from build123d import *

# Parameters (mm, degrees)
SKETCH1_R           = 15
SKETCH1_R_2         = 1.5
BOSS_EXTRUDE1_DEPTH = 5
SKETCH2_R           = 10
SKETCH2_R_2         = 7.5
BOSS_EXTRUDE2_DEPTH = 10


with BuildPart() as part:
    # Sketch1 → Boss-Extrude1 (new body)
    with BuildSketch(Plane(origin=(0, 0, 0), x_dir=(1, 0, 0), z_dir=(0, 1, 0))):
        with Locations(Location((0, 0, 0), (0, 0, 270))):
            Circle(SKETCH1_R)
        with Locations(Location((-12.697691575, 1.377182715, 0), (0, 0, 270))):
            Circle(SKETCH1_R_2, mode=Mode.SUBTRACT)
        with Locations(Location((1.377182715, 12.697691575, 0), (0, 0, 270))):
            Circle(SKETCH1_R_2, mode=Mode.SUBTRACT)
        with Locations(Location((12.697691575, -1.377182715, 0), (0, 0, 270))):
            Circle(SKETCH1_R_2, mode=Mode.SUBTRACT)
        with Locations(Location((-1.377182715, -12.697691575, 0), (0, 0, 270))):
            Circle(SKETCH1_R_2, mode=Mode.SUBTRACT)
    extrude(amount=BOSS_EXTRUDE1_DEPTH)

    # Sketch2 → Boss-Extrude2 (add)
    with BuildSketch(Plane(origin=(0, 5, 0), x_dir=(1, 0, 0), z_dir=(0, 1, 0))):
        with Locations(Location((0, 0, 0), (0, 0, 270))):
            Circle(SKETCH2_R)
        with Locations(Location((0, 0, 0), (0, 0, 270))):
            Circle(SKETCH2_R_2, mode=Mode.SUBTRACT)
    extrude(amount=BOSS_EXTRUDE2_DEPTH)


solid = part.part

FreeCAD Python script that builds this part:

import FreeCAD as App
import Part
import Sketcher
from FreeCAD import Vector

doc = App.newDocument("Part")
body = doc.addObject("PartDesign::Body", "Body")

sketch1 = body.newObject("Sketcher::SketchObject", "Sketch")
sketch1.AttachmentSupport = (doc.getObject("XZ_Plane"), [""])
sketch1.MapMode = "FlatFace"
sketch1.addGeometry([
    Part.Circle(Vector(0, 0, 0), Vector(0, 0, 1), 15),
    Part.Circle(Vector(-12.7, -1.4, 0), Vector(0, 0, 1), 1.5),
    Part.Circle(Vector(-1.4, 12.7, 0), Vector(0, 0, 1), 1.5),
    Part.Circle(Vector(1.4, -12.7, 0), Vector(0, 0, 1), 1.5),
    Part.Circle(Vector(12.7, 1.4, 0), Vector(0, 0, 1), 1.5),
], False)
sketch1.addConstraint([
    Sketcher.Constraint("Coincident", 0, 3, -1, 1),
    Sketcher.Constraint("Equal", 1, 2),
    Sketcher.Constraint("Equal", 2, 3),
    Sketcher.Constraint("Equal", 3, 4),
    Sketcher.Constraint("Symmetric", 2, 3, 3, 3, -1, 1),
    Sketcher.Constraint("Symmetric", 1, 3, 4, 3, -1, 1),
    Sketcher.Constraint("Diameter", 0, 30.0),
    Sketcher.Constraint("Diameter", 1, 3.0),
    Sketcher.Constraint("DistanceX", 1, 3, -1, 1, 12.697692),
    Sketcher.Constraint("DistanceY", -1, 1, 2, 3, 12.697692),
    Sketcher.Constraint("DistanceX", 1, 3, 2, 3, 11.320509),
    Sketcher.Constraint("DistanceY", 3, 3, 1, 3, 11.320509),
])
pad1 = body.newObject("PartDesign::Pad", "Pad")
pad1.Profile = sketch1
pad1.Length = 5
pad1.Reversed = True

sketch2 = body.newObject("Sketcher::SketchObject", "Sketch001")
sketch2.AttachmentSupport = (doc.getObject("XZ_Plane"), [""])
sketch2.MapMode = "FlatFace"
sketch2.AttachmentOffset = App.Placement(Vector(0, 0, -5), App.Rotation())
sketch2.addGeometry([
    Part.Circle(Vector(0, 0, 0), Vector(0, 0, 1), 10),
    Part.Circle(Vector(0, 0, 0), Vector(0, 0, 1), 8),
], False)
sketch2.addConstraint([
    Sketcher.Constraint("Coincident", 0, 3, -1, 1),
    Sketcher.Constraint("Coincident", 1, 3, -1, 1),
    Sketcher.Constraint("Diameter", 0, 20.0),
    Sketcher.Constraint("Diameter", 1, 15.0),
])
pad2 = body.newObject("PartDesign::Pad", "Pad001")
pad2.Profile = sketch2
pad2.Length = 10
pad2.Reversed = True

doc.recompute()
